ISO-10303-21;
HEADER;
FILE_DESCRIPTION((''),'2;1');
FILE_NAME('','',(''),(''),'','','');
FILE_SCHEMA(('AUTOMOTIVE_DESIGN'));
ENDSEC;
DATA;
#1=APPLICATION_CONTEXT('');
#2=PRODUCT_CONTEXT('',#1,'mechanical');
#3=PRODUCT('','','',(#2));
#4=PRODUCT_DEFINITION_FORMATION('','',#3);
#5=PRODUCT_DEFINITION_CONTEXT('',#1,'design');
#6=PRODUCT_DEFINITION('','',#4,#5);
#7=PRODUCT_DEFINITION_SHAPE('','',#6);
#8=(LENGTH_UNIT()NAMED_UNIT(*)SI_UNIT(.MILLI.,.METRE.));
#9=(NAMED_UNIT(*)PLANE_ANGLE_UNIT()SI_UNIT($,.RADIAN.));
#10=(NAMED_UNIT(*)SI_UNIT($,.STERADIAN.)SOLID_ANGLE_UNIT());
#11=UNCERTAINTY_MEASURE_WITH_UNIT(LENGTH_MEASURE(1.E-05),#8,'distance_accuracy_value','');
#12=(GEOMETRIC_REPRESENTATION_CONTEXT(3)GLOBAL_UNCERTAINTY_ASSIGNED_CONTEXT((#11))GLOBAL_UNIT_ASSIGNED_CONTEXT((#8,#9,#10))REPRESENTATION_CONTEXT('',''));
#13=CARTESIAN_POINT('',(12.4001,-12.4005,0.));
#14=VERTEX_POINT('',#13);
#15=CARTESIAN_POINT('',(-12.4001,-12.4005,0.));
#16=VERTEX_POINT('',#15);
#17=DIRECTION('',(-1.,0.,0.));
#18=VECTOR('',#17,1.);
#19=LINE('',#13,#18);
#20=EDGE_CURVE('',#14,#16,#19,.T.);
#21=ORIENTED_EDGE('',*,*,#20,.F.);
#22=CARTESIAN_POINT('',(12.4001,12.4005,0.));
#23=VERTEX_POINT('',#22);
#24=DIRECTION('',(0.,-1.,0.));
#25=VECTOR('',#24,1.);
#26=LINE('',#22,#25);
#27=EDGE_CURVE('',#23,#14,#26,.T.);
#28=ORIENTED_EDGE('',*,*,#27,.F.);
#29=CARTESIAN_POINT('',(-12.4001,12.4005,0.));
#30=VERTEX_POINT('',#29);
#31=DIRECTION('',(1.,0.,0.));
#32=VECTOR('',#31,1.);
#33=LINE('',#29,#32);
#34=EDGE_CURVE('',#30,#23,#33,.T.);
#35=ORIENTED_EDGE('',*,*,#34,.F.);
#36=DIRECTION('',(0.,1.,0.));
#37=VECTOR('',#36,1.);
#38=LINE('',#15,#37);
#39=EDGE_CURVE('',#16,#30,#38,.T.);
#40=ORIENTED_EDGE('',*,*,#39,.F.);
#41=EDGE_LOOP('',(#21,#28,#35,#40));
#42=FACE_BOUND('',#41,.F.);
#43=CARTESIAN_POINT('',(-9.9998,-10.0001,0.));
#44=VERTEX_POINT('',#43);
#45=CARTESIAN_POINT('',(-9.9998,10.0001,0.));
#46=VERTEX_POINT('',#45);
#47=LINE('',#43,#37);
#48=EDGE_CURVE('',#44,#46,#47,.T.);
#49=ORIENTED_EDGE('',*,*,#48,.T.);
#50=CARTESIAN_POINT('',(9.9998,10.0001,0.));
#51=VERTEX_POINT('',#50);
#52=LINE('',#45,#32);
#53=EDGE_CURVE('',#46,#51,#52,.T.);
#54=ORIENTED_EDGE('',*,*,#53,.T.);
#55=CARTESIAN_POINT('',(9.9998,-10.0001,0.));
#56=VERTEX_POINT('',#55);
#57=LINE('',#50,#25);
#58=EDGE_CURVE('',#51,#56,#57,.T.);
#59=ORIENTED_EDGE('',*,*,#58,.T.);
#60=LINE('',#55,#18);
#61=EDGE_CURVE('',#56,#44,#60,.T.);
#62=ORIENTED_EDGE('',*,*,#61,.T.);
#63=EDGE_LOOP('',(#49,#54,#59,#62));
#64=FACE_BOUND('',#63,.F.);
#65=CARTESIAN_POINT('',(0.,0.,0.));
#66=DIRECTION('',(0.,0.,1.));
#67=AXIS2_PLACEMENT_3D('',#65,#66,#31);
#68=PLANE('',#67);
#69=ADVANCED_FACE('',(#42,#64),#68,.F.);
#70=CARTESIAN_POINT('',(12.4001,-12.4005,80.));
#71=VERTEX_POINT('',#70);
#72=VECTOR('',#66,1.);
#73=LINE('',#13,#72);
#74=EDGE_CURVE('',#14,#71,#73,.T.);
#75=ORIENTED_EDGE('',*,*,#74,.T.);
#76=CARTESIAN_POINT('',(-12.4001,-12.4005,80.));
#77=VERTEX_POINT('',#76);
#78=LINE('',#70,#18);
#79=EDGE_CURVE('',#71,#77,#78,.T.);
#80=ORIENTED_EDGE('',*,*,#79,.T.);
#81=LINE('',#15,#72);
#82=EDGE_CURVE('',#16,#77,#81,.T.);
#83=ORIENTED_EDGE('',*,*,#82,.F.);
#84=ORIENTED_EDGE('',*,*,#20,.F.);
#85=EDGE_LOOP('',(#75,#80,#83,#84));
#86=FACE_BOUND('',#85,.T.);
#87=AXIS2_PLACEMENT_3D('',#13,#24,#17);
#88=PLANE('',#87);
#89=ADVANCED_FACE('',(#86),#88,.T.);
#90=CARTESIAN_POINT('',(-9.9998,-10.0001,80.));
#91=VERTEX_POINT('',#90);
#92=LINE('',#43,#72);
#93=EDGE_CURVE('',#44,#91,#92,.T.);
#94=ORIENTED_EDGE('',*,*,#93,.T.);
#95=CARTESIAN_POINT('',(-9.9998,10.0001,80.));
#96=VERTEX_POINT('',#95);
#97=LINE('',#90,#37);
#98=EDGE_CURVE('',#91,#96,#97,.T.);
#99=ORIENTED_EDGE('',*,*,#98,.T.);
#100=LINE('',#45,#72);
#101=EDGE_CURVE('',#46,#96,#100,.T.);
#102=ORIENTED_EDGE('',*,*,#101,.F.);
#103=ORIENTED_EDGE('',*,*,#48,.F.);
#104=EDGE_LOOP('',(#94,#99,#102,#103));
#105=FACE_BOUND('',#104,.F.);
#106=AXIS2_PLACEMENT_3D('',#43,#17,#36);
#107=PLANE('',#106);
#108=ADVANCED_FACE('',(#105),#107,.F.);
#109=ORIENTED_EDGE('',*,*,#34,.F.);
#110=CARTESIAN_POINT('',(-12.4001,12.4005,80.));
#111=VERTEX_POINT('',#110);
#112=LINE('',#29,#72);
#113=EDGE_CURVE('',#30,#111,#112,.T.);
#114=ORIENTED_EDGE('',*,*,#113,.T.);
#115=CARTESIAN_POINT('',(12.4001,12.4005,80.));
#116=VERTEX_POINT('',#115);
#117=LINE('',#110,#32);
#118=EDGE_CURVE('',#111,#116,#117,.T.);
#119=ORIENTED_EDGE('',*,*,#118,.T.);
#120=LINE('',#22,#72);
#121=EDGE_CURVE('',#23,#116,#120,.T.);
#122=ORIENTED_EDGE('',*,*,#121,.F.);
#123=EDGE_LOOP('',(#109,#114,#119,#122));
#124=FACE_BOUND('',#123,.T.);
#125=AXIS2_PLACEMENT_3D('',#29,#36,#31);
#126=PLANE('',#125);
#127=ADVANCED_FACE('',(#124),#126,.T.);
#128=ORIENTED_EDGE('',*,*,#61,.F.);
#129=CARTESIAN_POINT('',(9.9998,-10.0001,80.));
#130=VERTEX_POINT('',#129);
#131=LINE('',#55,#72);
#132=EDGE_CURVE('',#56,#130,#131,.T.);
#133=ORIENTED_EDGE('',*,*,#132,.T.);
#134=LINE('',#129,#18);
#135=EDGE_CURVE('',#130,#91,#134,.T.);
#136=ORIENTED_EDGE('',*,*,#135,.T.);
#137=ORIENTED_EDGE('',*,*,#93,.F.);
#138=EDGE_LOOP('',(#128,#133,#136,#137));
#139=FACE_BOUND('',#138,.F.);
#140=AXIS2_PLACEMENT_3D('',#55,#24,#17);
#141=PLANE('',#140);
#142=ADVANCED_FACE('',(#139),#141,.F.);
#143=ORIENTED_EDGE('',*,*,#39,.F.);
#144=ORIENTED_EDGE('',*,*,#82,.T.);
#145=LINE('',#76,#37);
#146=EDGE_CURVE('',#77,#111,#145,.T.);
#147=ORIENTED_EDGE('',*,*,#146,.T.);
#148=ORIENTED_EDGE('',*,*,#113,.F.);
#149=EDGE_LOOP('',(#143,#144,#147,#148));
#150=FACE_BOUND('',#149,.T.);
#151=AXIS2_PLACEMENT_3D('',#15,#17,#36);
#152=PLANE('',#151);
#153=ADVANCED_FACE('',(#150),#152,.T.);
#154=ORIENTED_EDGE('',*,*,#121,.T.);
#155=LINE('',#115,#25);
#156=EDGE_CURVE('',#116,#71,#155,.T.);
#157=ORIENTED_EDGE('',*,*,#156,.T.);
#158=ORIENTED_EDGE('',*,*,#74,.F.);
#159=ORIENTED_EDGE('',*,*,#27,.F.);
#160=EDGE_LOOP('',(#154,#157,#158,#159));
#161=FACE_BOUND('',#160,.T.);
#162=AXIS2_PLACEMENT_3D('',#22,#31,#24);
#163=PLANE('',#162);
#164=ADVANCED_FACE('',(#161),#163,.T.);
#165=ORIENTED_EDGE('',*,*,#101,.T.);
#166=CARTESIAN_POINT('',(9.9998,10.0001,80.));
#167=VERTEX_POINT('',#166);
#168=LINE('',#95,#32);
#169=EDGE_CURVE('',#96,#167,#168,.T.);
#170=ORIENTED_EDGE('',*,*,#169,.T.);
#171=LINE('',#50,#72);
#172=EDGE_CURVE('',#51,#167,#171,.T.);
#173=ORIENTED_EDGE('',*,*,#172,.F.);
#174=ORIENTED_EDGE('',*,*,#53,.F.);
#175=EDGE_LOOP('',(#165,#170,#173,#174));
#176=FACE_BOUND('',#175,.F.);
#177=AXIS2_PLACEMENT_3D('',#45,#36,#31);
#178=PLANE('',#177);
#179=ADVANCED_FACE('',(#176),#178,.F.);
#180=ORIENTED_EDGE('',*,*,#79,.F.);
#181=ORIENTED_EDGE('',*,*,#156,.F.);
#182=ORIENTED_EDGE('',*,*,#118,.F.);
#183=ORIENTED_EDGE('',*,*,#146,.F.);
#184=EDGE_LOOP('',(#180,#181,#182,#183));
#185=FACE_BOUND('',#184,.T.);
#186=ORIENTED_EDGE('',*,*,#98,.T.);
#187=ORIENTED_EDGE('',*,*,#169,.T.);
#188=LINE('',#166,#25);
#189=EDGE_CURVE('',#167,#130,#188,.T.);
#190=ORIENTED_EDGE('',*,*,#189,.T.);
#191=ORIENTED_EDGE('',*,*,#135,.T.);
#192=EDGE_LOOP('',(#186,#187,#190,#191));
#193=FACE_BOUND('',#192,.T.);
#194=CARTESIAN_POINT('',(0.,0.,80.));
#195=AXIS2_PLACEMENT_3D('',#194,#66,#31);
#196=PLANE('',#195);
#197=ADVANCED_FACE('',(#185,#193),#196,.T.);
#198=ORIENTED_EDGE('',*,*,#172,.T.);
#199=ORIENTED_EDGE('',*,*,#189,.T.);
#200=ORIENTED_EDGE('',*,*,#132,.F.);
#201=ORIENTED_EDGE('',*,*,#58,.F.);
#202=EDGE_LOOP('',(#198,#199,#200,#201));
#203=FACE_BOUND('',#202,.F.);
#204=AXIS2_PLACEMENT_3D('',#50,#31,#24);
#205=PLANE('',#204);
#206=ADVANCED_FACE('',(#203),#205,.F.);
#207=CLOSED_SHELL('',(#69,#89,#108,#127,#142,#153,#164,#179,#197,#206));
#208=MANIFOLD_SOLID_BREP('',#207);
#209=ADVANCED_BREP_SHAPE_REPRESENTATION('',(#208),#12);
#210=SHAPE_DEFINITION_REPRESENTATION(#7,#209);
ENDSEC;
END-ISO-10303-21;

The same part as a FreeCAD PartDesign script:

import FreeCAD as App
import Part
import Sketcher

V = App.Vector


def add_polygon(sketch, points):
    """Adds a closed chain of lines whose ends are joined by coincident constraints."""
    first, n = sketch.GeometryCount, len(points)
    for a, b in zip(points, points[1:] + points[:1]):
        sketch.addGeometry(Part.LineSegment(App.Vector(*a, 0), App.Vector(*b, 0)), False)
    for i in range(n):
        sketch.addConstraint(Sketcher.Constraint("Coincident", first + i, 2, first + (i + 1) % n, 1))

doc = App.newDocument("Part")
body = doc.addObject("PartDesign::Body", "Body")

sketch1 = doc.addObject("Sketcher::SketchObject", "Sketch")
body.addObject(sketch1)
sketch1.AttachmentSupport = (doc.XY_Plane, [""])
sketch1.MapMode = "FlatFace"
add_polygon(sketch1, [(12, 12), (-12, 12), (-12, -12), (12, -12)])
add_polygon(sketch1, [(-10, -10), (-10, 10), (10, 10), (10, -10)])
sketch1.addConstraint([
    Sketcher.Constraint("Horizontal", 0),
    Sketcher.Constraint("Vertical", 1),
    Sketcher.Constraint("Horizontal", 2),
    Sketcher.Constraint("Vertical", 3),
    Sketcher.Constraint("Vertical", 4),
    Sketcher.Constraint("Horizontal", 5),
    Sketcher.Constraint("Vertical", 6),
    Sketcher.Constraint("Horizontal", 7),
    Sketcher.Constraint("Symmetric", 0, 2, 2, 2, -1, 1),
    Sketcher.Constraint("Symmetric", 4, 2, 6, 2, -1, 1),
    Sketcher.Constraint("DistanceY", -1, 1, 4, 2, 10.0),
    Sketcher.Constraint("DistanceX", 0, 2, -1, 1, 12.4),
    Sketcher.Constraint("DistanceX", 4, 2, 3, 2, 22.4),
    Sketcher.Constraint("DistanceY", 1, 2, 1, 1, 24.801),
])
pad1 = doc.addObject("PartDesign::Pad", "Pad")
body.addObject(pad1)
pad1.Profile = sketch1
pad1.Length = 80

doc.recompute()
